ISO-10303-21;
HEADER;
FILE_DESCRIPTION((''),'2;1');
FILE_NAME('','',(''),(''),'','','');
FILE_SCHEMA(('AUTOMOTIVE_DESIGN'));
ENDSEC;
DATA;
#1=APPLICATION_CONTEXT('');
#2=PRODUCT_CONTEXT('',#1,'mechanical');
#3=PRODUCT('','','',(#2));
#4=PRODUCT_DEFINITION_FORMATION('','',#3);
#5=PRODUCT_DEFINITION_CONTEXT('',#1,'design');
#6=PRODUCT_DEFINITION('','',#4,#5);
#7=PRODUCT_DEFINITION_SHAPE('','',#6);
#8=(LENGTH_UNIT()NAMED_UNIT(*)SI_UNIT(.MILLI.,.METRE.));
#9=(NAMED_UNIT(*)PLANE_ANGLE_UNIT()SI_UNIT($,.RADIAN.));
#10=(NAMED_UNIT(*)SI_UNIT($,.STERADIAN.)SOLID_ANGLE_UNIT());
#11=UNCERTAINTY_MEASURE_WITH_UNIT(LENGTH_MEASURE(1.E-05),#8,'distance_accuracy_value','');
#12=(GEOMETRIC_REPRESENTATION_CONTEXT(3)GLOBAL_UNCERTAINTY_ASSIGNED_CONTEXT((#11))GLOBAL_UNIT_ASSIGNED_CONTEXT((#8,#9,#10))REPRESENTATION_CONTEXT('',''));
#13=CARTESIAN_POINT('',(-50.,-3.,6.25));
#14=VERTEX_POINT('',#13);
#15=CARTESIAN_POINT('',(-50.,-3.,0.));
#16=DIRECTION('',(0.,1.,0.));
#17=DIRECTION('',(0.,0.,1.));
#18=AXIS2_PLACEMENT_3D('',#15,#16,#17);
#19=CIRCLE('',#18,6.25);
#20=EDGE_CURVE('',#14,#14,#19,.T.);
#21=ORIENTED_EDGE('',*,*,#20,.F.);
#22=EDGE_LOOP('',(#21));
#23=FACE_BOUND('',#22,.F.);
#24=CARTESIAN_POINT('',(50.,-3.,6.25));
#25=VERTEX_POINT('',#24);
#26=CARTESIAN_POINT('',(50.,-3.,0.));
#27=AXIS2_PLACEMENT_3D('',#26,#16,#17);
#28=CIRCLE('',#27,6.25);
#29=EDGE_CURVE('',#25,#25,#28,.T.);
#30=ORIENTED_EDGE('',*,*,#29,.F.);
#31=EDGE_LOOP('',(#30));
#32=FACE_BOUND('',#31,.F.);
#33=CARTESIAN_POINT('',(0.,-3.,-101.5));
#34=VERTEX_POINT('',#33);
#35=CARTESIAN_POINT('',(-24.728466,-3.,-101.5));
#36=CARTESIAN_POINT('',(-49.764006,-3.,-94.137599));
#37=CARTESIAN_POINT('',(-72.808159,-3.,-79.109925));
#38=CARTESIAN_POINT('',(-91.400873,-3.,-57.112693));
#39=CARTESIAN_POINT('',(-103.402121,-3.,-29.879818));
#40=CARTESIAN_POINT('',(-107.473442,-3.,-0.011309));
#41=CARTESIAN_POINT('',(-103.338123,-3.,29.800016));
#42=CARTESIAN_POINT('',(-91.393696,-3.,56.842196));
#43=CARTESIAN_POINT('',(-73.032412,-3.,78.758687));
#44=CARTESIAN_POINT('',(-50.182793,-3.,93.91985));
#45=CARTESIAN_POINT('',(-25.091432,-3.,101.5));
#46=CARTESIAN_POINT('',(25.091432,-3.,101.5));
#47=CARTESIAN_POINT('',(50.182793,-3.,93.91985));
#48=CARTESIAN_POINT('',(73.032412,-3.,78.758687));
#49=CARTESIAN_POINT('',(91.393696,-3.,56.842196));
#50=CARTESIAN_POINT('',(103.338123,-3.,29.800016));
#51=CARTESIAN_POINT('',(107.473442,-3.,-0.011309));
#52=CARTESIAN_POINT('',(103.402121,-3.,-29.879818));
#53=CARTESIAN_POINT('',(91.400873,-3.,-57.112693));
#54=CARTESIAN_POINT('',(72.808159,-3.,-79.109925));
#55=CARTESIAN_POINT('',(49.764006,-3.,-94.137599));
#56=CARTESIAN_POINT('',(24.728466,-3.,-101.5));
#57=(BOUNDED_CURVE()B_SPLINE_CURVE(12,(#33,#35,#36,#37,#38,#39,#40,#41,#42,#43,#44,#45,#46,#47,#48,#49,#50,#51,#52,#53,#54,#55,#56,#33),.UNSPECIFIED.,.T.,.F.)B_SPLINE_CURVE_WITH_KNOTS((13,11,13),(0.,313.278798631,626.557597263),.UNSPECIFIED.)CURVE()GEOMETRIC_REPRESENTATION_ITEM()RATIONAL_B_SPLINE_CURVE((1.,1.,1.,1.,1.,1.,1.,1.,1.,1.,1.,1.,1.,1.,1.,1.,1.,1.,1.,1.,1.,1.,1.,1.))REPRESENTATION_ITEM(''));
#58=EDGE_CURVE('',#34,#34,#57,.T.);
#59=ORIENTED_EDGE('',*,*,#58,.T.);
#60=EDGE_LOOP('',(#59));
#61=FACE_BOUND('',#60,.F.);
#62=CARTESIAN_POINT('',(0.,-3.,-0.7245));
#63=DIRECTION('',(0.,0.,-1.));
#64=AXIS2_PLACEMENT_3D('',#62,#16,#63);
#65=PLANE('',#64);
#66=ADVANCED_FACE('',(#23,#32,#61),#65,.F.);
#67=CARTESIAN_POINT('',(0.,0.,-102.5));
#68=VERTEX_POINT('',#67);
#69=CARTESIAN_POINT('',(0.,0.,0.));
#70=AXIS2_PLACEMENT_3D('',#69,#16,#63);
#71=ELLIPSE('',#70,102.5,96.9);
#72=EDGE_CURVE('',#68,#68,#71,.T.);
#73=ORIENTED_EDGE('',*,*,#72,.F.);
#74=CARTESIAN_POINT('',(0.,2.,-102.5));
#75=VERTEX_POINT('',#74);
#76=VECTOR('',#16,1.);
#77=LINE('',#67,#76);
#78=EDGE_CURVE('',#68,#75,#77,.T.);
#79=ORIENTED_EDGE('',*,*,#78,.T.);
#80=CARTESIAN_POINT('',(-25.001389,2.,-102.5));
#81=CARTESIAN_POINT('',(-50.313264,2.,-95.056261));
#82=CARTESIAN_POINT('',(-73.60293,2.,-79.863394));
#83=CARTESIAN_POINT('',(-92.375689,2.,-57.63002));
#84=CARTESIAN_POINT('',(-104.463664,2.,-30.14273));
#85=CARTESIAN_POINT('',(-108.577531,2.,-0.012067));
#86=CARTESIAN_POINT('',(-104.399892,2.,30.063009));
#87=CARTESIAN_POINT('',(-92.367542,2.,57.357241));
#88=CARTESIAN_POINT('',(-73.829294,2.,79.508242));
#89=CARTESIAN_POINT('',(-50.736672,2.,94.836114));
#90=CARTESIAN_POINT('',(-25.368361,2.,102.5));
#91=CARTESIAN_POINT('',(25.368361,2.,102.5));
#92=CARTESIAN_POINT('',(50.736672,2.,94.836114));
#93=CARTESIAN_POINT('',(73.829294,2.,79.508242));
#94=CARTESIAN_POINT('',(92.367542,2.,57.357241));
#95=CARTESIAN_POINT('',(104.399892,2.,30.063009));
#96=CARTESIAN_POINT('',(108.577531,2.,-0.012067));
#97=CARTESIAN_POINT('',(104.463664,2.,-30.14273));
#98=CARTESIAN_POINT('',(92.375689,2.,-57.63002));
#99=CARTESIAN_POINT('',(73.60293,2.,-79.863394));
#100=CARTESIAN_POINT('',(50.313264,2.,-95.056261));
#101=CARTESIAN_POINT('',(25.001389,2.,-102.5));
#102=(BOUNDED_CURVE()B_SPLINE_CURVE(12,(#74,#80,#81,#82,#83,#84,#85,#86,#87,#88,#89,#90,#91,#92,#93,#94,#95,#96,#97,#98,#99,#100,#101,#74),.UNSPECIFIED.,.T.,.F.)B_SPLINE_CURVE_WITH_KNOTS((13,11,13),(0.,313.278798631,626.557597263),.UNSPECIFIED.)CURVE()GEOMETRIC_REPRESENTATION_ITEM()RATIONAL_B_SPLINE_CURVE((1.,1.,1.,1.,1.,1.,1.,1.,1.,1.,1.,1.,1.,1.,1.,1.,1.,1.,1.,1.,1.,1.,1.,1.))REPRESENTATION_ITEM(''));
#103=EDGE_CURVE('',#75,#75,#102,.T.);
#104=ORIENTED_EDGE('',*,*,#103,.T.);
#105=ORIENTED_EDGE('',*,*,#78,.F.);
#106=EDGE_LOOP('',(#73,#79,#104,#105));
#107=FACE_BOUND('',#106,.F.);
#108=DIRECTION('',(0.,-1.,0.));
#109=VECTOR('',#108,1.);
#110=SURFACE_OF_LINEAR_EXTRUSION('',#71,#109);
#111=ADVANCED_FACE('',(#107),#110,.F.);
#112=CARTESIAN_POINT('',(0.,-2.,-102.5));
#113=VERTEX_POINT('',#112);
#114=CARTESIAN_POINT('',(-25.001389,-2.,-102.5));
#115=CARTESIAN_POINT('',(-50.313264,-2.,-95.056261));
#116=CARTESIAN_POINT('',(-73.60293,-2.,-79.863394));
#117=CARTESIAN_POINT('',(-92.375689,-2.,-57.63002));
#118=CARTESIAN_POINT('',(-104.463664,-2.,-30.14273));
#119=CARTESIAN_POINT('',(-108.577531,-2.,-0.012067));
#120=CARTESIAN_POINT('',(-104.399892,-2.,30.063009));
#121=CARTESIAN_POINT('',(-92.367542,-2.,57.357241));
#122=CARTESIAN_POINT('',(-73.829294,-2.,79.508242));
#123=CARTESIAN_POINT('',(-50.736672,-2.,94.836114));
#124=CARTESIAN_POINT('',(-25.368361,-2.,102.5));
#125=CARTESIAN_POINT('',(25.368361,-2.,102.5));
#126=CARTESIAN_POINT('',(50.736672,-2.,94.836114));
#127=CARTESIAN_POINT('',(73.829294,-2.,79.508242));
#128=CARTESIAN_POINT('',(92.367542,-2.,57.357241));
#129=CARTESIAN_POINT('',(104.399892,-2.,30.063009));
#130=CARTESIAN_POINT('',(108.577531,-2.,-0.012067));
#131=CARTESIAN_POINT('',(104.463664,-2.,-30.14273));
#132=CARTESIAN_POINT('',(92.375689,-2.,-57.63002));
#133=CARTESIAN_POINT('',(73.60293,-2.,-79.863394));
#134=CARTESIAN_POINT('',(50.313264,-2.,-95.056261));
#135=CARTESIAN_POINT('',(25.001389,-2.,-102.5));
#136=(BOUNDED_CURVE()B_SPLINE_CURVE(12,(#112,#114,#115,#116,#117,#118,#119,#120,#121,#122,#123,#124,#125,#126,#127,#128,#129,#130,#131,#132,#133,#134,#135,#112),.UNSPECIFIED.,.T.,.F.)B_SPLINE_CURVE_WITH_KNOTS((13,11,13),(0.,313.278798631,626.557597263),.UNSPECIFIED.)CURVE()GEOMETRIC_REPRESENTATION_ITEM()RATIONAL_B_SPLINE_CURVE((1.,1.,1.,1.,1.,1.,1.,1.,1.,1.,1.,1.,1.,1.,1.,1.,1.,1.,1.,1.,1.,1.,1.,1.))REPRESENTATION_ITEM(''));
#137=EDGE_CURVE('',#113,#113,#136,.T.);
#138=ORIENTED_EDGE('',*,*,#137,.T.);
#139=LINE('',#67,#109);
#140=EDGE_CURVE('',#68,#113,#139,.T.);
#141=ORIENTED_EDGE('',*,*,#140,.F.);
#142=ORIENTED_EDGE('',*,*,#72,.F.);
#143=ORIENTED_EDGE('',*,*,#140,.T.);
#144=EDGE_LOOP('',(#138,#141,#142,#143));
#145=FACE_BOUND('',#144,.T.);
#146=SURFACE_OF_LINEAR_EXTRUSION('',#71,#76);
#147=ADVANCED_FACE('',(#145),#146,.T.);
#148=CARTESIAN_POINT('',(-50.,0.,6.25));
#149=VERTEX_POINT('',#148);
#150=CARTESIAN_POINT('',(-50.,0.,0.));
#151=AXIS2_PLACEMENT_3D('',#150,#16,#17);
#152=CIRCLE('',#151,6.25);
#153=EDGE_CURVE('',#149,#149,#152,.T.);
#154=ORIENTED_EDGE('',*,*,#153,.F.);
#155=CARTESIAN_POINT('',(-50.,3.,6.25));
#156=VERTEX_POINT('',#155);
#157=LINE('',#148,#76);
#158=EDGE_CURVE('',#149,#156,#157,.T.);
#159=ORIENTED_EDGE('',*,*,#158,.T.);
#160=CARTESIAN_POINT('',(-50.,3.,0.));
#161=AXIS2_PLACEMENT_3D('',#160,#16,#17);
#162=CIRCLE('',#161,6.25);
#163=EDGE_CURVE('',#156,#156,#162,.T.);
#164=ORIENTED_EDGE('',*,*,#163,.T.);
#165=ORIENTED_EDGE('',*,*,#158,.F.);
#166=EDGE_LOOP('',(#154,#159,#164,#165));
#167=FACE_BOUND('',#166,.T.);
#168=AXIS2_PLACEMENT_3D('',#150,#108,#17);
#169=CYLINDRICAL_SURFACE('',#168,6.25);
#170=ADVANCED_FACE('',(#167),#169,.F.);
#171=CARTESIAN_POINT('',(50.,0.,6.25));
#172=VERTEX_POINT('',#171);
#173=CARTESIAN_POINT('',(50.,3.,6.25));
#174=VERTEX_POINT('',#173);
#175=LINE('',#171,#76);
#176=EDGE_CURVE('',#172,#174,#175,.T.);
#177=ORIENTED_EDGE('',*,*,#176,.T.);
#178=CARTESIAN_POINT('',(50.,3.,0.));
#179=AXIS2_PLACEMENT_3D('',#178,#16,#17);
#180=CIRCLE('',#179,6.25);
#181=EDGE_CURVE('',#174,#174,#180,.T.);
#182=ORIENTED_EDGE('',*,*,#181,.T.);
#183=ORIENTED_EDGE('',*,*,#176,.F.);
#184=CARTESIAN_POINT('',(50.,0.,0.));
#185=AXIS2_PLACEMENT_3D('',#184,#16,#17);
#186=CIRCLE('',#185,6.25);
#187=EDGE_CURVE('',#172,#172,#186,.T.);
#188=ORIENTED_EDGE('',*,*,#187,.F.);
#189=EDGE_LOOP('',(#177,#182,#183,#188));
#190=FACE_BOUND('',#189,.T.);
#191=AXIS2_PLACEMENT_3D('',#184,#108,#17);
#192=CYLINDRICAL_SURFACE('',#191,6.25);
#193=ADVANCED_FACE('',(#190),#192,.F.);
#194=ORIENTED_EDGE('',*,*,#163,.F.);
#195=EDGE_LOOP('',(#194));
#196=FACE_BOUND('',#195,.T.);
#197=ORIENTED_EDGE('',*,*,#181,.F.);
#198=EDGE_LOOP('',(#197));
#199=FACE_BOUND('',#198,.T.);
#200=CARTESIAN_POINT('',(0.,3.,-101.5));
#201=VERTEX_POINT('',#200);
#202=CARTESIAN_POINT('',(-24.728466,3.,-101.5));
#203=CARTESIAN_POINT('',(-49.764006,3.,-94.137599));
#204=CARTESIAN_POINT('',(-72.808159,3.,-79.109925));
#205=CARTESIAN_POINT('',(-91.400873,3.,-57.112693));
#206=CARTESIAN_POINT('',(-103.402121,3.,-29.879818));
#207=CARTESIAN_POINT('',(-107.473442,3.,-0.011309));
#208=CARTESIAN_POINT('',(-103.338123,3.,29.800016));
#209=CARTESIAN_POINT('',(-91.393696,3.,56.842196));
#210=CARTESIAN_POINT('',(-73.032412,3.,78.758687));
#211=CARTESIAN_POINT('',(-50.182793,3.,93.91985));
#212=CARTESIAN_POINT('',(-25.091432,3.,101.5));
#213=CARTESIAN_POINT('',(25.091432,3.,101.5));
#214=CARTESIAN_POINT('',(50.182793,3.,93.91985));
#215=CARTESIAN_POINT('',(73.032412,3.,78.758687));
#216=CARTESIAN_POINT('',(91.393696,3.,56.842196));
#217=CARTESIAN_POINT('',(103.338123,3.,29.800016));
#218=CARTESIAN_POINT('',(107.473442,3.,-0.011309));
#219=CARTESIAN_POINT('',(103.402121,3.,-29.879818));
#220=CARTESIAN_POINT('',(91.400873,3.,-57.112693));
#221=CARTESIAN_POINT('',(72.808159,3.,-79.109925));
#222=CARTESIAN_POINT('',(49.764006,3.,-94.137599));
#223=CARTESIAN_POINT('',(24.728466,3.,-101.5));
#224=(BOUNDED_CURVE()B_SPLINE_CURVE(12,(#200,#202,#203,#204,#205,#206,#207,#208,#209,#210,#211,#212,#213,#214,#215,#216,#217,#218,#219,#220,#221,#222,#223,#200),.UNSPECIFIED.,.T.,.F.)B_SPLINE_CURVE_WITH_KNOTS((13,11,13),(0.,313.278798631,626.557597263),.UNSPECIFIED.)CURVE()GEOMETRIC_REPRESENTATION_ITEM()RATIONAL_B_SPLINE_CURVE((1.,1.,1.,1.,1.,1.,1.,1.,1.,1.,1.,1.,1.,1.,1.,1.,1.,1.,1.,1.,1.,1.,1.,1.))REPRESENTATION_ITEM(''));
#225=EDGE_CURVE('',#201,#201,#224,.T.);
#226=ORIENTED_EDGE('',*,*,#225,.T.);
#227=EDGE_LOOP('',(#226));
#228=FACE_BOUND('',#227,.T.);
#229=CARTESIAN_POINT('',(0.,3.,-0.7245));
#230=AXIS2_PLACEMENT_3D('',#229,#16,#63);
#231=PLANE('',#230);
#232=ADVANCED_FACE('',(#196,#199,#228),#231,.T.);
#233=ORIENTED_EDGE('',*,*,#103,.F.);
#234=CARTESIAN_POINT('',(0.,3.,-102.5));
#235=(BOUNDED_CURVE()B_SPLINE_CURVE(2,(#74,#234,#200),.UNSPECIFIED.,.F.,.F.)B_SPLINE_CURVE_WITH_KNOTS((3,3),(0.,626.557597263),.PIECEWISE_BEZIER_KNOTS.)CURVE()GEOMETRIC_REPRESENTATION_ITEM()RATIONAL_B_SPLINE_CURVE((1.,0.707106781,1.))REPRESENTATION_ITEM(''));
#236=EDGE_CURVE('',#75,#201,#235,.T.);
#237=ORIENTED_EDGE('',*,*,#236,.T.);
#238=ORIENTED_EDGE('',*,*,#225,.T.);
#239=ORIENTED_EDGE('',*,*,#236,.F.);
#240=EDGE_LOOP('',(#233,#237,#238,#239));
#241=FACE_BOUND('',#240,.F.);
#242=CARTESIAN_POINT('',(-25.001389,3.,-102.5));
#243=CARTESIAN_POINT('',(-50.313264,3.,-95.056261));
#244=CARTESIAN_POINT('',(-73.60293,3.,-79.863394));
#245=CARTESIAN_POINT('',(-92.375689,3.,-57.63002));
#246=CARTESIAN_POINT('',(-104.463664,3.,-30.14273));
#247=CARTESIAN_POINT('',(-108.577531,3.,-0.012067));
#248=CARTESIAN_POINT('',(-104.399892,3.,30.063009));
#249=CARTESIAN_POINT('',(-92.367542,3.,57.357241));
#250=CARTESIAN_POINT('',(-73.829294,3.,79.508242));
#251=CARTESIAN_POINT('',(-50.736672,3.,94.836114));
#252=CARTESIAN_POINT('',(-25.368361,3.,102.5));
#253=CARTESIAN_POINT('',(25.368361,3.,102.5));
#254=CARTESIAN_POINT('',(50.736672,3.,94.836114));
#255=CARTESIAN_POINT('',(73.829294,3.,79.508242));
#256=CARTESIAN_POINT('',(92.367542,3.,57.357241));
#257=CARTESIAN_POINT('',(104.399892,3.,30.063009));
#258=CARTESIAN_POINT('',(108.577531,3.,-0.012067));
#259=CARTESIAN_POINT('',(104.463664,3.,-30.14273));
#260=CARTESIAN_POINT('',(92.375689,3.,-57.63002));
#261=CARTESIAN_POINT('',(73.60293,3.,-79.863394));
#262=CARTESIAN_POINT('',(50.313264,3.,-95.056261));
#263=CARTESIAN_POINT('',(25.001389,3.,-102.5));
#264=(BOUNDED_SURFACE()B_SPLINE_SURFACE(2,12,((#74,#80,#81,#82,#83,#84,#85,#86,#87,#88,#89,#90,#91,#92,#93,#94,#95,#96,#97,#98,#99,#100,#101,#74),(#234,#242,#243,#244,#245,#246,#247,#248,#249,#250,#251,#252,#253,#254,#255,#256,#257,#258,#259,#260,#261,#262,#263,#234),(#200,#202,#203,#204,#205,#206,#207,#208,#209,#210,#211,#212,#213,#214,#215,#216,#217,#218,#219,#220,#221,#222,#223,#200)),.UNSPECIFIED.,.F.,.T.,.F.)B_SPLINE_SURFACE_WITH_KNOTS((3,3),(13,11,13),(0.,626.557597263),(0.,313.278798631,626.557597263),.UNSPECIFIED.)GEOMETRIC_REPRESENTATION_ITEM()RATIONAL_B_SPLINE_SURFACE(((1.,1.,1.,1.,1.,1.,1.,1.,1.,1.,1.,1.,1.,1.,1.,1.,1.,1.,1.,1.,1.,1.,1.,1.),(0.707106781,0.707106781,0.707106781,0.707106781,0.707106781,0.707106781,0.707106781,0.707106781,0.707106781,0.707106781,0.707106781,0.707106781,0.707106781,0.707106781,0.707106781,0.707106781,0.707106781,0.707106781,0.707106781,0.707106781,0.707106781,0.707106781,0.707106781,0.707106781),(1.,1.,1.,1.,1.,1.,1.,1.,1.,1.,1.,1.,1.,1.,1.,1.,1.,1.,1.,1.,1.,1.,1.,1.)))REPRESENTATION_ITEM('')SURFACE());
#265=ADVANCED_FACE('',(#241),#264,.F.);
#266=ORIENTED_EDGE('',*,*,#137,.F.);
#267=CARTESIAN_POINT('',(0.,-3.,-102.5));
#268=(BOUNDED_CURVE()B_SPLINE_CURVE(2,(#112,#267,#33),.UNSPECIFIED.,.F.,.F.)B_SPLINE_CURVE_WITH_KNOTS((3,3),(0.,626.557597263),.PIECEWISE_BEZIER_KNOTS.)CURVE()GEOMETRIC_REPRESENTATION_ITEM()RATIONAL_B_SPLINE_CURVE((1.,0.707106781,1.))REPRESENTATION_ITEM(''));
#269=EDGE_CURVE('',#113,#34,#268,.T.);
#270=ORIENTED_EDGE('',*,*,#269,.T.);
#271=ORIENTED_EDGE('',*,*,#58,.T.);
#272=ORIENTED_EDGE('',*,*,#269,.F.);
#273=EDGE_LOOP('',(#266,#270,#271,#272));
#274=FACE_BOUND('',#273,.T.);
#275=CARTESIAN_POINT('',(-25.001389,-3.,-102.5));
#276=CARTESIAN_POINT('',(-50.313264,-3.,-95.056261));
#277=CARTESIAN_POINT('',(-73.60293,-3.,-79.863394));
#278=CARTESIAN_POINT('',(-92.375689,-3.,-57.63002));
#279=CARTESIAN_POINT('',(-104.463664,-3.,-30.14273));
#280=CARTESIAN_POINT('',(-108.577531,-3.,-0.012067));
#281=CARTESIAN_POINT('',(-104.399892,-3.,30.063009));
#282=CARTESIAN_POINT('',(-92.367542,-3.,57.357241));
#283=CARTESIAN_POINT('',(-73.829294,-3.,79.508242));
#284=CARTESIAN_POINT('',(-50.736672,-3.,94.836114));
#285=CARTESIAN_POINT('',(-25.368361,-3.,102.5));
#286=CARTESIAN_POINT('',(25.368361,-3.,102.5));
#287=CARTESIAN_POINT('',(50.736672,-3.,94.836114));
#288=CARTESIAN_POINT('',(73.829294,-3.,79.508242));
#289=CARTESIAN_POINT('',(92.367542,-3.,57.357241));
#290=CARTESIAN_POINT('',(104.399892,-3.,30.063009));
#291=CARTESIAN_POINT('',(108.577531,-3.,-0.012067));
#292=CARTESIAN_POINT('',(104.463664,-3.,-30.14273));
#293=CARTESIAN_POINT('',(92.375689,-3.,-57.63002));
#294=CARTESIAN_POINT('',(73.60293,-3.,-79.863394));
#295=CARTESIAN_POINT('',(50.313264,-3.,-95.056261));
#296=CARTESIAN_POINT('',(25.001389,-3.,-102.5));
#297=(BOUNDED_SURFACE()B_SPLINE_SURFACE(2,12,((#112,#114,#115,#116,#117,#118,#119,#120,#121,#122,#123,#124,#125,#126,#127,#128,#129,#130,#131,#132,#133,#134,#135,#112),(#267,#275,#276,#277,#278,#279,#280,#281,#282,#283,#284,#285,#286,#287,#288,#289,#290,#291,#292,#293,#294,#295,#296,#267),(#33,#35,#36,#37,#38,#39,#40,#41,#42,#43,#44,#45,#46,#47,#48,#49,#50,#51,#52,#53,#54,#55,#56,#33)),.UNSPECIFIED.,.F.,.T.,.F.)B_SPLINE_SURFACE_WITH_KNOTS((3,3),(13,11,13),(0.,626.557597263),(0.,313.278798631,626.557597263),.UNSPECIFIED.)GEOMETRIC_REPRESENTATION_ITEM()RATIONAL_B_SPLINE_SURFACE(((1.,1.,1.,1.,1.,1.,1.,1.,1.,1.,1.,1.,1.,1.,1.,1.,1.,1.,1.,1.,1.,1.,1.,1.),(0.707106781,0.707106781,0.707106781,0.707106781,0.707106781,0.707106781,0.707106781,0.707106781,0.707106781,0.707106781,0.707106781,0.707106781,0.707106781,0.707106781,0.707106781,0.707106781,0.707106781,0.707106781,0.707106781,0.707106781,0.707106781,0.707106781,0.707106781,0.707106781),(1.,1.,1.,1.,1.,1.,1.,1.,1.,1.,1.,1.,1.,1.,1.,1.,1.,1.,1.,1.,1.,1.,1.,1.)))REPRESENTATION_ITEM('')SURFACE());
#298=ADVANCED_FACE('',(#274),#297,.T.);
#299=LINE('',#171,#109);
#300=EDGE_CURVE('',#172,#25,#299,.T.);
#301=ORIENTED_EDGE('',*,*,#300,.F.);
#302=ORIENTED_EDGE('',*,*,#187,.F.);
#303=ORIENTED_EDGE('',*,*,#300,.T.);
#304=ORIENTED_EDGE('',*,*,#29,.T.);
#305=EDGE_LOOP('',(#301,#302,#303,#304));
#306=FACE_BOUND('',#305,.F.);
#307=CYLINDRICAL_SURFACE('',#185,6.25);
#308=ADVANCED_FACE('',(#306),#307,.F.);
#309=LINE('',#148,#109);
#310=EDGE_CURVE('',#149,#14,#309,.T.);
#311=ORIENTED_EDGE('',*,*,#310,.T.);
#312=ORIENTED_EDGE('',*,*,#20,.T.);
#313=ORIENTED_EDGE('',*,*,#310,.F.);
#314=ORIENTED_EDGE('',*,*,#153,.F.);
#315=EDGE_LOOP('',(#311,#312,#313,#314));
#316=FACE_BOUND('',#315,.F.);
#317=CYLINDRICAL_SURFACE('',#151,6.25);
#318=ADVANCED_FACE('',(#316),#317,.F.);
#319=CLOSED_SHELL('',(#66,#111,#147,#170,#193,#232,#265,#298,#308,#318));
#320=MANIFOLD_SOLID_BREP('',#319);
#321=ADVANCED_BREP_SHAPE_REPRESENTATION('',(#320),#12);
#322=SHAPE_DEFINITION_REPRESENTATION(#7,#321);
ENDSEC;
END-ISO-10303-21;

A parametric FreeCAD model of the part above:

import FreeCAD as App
import Part
import Sketcher
from FreeCAD import Vector


def edges_at(feature, points):
    """Names of the edges that pass closest to the given points."""
    edges = feature.Shape.Edges
    near = lambda p: min(range(len(edges)), key=lambda i: edges[i].distToShape(Part.Vertex(*p))[0])
    return sorted({f"Edge{near(p) + 1}" for p in points})

doc = App.newDocument("Part")
body = doc.addObject("PartDesign::Body", "Body")

sketch1 = doc.addObject("Sketcher::SketchObject", "Sketch")
body.addObject(sketch1)
sketch1.AttachmentSupport = (doc.XZ_Plane, [""])
sketch1.MapMode = "FlatFace"
sketch1.addGeometry(Part.Ellipse(Vector(0, -102.5, 0), Vector(96.9, 0, 0), Vector(0, 0, 0)), False)
sketch1.addGeometry(Part.Circle(Vector(50, 0, 0), Vector(0, 0, 1), 6.25), False)
sketch1.addGeometry(Part.Circle(Vector(-50, 0, 0), Vector(0, 0, 1), 6.25), False)
sketch1.addConstraint(Sketcher.Constraint("Block", 0))
sketch1.addConstraint(Sketcher.Constraint("Equal", 1, 2))
sketch1.addConstraint(Sketcher.Constraint("Symmetric", 1, 3, 2, 3, -1, 1))
sketch1.addConstraint(Sketcher.Constraint("PointOnObject", 1, 3, -1))
sketch1.addConstraint(Sketcher.Constraint("Diameter", 1, 12.5))
sketch1.addConstraint(Sketcher.Constraint("DistanceX", -1, 1, 1, 3, 50.0))
pad1 = doc.addObject("PartDesign::Pad", "Pad")
body.addObject(pad1)
pad1.Profile = sketch1
pad1.Length = 6
pad1.Midplane = True
doc.recompute()

fillet = doc.addObject("PartDesign::Fillet", "Fillet")
body.addObject(fillet)
fillet.Base = (pad1, edges_at(pad1, [(0, -3, 102.5), (0, 3, 102.5)]))
fillet.Radius = 1

doc.recompute()
